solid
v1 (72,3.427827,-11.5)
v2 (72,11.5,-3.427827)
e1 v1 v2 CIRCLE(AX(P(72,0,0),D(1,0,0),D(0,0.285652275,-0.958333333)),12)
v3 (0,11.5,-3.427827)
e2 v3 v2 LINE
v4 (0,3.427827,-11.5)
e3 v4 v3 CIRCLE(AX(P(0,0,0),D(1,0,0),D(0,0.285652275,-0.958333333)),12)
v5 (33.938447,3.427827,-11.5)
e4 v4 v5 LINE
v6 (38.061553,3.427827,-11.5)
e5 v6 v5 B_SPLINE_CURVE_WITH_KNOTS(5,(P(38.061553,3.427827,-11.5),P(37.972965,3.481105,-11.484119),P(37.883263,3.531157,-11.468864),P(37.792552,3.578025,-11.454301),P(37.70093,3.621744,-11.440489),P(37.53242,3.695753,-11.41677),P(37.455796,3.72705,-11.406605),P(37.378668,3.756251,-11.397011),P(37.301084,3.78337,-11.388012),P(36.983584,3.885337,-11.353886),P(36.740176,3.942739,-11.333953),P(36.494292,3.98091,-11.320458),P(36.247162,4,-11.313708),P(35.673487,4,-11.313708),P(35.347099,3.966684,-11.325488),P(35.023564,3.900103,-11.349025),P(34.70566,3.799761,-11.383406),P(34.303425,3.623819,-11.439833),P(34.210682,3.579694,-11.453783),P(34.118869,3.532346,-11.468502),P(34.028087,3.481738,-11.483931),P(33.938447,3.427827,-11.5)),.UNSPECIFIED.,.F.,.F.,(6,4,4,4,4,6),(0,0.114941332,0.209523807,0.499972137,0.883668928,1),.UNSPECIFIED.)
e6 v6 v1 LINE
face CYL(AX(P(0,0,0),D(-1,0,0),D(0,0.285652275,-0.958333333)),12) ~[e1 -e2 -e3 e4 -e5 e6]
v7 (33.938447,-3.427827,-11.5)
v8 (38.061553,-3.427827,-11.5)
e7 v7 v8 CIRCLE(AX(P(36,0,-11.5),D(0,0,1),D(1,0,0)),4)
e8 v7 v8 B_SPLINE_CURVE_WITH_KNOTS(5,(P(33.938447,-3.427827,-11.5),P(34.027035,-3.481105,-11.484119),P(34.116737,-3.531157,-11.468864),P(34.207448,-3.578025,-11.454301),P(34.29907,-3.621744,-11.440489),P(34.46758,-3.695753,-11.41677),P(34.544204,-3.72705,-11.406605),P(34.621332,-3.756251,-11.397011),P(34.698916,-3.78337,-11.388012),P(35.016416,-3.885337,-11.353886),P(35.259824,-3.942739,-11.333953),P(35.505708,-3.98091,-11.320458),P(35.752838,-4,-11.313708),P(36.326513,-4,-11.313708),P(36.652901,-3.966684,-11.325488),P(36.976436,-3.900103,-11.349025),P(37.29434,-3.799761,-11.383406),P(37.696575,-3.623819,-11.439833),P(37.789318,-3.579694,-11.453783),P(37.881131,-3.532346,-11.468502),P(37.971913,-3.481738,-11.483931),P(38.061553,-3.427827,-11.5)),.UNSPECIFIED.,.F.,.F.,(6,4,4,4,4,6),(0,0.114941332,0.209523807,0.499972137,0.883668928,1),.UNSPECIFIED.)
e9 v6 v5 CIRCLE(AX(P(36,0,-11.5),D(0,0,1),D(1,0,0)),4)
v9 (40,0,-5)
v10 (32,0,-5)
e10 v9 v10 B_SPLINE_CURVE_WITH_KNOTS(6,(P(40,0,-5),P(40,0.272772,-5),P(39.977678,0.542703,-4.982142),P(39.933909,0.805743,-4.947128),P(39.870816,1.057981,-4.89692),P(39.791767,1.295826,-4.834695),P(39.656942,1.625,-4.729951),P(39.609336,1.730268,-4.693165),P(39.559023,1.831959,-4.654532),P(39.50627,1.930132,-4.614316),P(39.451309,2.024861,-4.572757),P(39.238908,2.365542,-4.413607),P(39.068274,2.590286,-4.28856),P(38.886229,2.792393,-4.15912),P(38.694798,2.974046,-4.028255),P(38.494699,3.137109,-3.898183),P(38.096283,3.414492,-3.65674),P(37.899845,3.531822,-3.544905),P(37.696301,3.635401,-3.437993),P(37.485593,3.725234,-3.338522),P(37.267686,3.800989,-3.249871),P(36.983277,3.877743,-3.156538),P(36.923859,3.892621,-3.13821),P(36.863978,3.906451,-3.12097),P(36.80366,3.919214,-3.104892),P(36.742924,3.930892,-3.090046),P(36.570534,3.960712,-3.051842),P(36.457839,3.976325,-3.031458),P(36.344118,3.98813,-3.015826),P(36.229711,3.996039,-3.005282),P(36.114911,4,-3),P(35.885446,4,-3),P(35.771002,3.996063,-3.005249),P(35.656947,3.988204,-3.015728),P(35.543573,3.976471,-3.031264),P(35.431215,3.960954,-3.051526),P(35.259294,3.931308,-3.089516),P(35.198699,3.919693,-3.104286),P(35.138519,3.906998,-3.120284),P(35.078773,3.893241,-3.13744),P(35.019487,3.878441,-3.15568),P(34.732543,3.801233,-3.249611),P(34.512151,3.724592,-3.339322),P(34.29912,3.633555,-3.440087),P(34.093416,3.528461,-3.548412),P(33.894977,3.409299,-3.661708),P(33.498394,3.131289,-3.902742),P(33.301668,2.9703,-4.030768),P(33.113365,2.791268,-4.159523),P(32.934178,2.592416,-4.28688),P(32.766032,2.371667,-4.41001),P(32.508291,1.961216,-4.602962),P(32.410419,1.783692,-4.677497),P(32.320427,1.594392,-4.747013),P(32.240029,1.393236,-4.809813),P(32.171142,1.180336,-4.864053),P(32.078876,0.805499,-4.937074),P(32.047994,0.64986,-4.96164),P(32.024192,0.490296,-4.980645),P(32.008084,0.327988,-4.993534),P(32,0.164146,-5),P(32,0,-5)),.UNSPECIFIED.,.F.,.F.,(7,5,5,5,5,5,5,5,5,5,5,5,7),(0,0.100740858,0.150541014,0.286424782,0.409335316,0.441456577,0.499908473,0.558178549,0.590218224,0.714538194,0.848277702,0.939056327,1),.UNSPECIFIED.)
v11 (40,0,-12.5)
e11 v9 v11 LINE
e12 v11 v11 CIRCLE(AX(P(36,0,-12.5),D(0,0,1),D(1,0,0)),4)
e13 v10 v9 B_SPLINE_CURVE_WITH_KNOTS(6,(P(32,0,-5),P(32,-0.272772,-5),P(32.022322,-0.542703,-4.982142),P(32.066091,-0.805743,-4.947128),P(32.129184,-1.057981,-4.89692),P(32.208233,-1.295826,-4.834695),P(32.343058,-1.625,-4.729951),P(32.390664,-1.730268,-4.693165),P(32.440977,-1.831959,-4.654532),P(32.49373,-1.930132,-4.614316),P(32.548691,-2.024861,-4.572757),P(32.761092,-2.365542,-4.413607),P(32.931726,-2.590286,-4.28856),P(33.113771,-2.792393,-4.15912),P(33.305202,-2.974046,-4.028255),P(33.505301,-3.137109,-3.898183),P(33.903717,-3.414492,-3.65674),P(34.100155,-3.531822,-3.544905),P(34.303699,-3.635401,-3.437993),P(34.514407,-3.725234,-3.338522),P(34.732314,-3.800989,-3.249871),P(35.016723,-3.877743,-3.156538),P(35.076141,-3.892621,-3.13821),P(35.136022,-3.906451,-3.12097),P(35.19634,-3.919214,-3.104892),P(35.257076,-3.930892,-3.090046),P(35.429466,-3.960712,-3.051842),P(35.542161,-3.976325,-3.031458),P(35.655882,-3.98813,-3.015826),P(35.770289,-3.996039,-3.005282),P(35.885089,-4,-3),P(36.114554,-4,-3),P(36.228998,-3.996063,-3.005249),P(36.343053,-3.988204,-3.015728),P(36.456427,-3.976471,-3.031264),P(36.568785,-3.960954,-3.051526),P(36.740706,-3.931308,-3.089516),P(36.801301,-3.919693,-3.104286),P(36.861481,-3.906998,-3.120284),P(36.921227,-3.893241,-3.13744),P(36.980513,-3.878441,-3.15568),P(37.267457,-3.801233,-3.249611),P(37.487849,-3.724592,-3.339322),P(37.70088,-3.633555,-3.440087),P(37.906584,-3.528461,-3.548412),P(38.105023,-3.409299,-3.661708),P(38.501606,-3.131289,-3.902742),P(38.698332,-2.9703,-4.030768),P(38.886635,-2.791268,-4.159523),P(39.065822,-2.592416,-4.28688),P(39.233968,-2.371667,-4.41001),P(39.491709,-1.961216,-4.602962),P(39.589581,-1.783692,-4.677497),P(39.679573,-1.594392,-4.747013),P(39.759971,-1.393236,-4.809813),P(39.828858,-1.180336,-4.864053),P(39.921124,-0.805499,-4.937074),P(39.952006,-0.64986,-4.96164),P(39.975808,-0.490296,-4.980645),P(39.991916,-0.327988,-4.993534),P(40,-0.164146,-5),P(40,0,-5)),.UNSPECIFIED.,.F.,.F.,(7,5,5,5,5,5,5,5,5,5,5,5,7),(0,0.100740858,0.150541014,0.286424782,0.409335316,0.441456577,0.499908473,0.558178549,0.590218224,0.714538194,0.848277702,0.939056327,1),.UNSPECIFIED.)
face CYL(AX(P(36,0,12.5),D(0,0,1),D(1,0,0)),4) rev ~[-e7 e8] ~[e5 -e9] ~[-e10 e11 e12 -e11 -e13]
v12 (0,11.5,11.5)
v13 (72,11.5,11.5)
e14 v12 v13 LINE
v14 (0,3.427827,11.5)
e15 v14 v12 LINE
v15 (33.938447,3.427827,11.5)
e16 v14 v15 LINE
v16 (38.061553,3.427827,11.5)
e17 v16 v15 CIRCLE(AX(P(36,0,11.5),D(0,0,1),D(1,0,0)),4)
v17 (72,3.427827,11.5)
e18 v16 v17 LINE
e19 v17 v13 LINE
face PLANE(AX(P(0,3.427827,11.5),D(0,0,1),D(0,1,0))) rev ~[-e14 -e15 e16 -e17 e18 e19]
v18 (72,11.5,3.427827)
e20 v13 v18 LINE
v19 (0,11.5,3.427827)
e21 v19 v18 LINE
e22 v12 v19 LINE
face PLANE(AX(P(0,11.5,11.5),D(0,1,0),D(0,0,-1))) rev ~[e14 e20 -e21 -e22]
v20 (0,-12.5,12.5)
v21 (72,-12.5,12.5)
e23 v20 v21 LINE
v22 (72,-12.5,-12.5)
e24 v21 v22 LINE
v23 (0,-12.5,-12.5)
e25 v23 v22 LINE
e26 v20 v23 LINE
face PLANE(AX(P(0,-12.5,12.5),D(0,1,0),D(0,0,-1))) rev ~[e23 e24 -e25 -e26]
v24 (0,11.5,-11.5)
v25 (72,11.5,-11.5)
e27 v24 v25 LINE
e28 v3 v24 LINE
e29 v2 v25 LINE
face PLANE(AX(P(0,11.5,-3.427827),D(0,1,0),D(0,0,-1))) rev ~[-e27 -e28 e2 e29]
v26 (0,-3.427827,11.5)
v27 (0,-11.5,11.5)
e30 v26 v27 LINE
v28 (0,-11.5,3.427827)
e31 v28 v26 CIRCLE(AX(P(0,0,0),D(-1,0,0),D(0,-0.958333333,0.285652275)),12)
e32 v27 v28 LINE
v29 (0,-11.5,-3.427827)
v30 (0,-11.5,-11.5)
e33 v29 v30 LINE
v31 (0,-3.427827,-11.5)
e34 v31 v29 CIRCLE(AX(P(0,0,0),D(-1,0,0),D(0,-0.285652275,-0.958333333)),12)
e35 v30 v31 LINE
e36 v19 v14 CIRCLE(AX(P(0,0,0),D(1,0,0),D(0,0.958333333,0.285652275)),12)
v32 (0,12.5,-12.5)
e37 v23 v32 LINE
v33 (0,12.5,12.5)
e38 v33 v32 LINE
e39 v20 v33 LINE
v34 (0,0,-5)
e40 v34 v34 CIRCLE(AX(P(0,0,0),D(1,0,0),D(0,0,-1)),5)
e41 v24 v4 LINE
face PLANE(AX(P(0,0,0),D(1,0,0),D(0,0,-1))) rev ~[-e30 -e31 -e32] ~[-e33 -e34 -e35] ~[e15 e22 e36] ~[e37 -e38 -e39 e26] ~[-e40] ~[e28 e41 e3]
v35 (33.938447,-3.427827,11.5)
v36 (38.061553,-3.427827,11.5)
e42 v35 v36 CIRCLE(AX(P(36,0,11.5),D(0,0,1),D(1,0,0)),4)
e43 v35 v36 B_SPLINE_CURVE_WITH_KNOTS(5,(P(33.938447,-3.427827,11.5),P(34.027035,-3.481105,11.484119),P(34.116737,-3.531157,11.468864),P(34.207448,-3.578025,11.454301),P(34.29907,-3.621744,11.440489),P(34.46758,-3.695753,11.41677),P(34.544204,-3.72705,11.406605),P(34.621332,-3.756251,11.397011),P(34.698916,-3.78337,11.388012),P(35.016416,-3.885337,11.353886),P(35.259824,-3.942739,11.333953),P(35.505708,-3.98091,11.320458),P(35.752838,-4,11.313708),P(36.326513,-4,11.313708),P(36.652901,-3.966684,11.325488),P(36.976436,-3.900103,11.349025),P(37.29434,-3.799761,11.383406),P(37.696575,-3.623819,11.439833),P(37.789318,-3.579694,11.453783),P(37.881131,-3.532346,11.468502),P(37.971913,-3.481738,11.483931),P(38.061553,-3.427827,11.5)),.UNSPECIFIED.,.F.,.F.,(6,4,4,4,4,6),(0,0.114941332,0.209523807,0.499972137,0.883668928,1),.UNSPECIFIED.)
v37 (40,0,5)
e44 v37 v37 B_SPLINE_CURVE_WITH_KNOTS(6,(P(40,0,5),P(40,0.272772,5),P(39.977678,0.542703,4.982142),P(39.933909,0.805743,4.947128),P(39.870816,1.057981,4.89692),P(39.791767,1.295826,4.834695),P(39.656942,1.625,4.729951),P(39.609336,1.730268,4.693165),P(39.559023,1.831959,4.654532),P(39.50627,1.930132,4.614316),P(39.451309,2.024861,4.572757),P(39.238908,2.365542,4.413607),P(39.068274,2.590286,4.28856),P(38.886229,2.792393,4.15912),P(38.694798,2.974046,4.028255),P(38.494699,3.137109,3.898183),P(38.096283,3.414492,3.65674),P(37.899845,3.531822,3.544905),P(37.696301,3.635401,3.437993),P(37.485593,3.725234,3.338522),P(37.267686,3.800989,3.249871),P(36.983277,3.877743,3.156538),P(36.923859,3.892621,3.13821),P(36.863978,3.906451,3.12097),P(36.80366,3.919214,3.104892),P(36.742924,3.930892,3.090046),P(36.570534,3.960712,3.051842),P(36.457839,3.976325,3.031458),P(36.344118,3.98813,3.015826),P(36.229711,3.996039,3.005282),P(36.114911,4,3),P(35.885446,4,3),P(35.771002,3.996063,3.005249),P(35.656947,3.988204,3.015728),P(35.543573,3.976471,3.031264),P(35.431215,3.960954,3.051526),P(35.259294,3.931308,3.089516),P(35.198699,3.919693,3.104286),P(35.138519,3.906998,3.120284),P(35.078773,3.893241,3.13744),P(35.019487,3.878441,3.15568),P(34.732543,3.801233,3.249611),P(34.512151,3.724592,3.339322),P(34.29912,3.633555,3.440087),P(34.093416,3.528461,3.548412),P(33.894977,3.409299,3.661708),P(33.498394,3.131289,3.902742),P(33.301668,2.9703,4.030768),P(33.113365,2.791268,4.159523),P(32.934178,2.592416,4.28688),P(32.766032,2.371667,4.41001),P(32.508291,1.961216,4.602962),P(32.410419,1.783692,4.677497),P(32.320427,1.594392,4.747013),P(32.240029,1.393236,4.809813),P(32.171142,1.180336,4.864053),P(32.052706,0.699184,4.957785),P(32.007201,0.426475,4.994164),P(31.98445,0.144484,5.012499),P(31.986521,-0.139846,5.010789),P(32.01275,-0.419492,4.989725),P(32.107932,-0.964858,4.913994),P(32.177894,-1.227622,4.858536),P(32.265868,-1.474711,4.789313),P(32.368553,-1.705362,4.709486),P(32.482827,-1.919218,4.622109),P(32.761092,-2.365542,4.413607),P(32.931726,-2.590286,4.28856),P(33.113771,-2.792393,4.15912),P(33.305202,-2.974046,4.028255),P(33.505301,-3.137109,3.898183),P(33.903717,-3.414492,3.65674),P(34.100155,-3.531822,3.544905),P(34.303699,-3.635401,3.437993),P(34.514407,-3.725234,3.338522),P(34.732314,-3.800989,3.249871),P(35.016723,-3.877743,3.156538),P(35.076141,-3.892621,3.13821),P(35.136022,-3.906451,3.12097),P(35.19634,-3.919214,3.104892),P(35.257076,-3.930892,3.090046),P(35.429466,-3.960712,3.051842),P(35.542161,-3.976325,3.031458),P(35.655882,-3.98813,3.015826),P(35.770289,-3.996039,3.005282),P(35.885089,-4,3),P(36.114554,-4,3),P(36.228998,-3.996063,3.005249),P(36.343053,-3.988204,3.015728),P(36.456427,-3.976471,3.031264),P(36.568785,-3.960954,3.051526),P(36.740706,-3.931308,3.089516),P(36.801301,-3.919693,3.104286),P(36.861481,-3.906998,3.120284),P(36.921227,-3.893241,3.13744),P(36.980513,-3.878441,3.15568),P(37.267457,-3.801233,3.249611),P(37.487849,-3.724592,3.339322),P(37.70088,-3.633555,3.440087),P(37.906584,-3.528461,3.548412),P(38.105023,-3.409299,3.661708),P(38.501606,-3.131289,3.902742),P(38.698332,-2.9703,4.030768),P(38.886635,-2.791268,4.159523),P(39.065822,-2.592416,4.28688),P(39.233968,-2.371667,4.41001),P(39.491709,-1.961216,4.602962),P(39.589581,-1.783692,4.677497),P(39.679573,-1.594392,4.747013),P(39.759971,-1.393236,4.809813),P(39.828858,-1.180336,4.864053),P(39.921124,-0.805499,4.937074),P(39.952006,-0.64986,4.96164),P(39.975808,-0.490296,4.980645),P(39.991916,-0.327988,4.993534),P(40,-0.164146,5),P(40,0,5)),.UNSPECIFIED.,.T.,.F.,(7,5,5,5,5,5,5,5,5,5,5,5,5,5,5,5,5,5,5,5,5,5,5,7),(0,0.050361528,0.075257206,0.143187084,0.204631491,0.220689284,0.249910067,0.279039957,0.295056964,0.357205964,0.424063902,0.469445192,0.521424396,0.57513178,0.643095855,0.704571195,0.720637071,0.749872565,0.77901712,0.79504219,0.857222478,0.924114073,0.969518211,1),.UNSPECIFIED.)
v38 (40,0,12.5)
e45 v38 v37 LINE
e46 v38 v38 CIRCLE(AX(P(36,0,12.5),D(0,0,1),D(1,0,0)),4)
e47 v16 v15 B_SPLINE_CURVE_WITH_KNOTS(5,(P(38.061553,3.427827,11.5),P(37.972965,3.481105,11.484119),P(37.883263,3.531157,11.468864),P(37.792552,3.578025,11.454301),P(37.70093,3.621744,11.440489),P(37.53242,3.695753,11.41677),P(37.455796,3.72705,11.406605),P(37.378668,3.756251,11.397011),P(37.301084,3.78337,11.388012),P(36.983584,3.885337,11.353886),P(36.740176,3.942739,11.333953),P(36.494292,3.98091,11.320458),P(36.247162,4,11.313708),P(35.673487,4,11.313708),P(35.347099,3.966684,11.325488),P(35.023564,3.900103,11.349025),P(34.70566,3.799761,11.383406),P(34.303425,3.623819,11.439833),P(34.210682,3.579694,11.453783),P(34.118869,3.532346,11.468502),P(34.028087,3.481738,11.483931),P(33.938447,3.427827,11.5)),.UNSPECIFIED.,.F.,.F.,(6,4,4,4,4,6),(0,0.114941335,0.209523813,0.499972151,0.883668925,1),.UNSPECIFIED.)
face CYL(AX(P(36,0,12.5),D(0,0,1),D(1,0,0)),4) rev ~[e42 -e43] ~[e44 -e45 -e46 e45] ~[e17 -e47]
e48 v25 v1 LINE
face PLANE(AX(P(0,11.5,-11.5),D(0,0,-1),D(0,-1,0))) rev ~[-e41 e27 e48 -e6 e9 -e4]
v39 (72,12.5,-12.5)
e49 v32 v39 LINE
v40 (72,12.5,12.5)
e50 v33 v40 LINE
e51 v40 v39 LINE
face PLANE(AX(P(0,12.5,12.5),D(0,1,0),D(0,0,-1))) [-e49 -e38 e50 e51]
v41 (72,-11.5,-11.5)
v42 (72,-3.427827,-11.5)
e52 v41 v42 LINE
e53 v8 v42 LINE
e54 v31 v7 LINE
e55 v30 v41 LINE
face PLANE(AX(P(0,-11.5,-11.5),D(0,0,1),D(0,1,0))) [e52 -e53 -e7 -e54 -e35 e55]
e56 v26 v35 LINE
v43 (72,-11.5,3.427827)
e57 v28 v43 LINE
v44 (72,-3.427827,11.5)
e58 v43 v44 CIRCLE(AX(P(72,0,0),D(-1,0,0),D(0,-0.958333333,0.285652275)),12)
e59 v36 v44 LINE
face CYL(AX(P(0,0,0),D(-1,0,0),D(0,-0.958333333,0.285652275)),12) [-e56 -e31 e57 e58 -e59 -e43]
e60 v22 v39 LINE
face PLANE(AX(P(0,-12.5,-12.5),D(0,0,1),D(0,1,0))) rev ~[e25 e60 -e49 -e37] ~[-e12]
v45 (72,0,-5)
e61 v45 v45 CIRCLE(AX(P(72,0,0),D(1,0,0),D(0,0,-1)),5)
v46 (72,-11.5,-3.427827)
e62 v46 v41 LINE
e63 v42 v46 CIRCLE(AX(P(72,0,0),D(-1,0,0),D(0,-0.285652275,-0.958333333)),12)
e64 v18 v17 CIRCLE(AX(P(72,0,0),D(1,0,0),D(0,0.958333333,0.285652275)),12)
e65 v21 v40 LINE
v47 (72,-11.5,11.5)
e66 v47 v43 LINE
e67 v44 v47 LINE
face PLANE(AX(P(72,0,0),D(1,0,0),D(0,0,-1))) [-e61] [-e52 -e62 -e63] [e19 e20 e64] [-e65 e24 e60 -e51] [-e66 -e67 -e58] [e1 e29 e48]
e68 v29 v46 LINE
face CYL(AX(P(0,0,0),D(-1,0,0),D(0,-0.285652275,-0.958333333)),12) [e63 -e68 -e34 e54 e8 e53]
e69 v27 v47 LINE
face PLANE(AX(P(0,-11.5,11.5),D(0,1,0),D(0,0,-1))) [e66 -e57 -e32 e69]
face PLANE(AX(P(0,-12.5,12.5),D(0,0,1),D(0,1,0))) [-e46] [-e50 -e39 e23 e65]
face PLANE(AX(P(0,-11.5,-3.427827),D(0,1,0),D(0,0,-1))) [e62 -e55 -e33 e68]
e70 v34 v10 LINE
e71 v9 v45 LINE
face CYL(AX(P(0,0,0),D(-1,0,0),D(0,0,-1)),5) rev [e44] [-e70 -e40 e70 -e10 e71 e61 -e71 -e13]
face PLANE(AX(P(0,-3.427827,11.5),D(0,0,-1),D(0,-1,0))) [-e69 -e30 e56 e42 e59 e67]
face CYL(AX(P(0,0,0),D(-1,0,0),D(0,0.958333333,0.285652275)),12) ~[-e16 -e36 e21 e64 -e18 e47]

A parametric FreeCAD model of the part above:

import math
import FreeCAD as App
import Part
import Sketcher

V = App.Vector
Q = App.Units.Quantity

doc = App.newDocument("Part")
body = doc.addObject("PartDesign::Body", "Body")

sketch1 = doc.addObject("Sketcher::SketchObject", "Sketch")
body.addObject(sketch1)
sketch1.AttachmentSupport = (doc.YZ_Plane, [""])
sketch1.MapMode = "FlatFace"
sketch1.addGeometry([
    Part.LineSegment(V(12, 12, 0), V(-12, 12, 0)),
    Part.LineSegment(V(-12, 12, 0), V(-12, -12, 0)),
    Part.LineSegment(V(-12, -12, 0), V(12, -12, 0)),
    Part.LineSegment(V(12, -12, 0), V(12, 12, 0)),
    Part.LineSegment(V(-12, 3, 0), V(-12, 12, 0)),
    Part.LineSegment(V(-12, 12, 0), V(-3, 12, 0)),
    Part.ArcOfCircle(Part.Circle(V(0, 0, 0), V(0, 0, 1), 12), math.radians(107), math.radians(163)),
    Part.LineSegment(V(-3, -12, 0), V(-12, -12, 0)),
    Part.LineSegment(V(-12, -12, 0), V(-12, -3, 0)),
    Part.ArcOfCircle(Part.Circle(V(0, 0, 0), V(0, 0, 1), 12), math.radians(-163), math.radians(-107)),
    Part.LineSegment(V(3, 12, 0), V(12, 12, 0)),
    Part.LineSegment(V(12, 12, 0), V(12, 3, 0)),
    Part.ArcOfCircle(Part.Circle(V(0, 0, 0), V(0, 0, 1), 12), math.radians(17), math.radians(73)),
    Part.Circle(V(0, 0, 0), V(0, 0, 1), 5),
    Part.ArcOfCircle(Part.Circle(V(0, 0, 0), V(0, 0, 1), 12), math.radians(-73), math.radians(-17)),
    Part.LineSegment(V(12, -3, 0), V(12, -12, 0)),
    Part.LineSegment(V(12, -12, 0), V(3, -12, 0)),
], False)
sketch1.addConstraint([
    Sketcher.Constraint("Coincident", 0, 2, 1, 1),
    Sketcher.Constraint("Coincident", 1, 2, 2, 1),
    Sketcher.Constraint("Coincident", 2, 2, 3, 1),
    Sketcher.Constraint("Coincident", 3, 2, 0, 1),
    Sketcher.Constraint("Coincident", 4, 2, 5, 1),
    Sketcher.Constraint("Coincident", 5, 2, 6, 1),
    Sketcher.Constraint("Coincident", 6, 2, 4, 1),
    Sketcher.Constraint("Coincident", 7, 2, 8, 1),
    Sketcher.Constraint("Coincident", 8, 2, 9, 1),
    Sketcher.Constraint("Coincident", 9, 2, 7, 1),
    Sketcher.Constraint("Coincident", 10, 2, 11, 1),
    Sketcher.Constraint("Coincident", 11, 2, 12, 1),
    Sketcher.Constraint("Coincident", 12, 2, 10, 1),
    Sketcher.Constraint("Coincident", 14, 2, 15, 1),
    Sketcher.Constraint("Coincident", 15, 2, 16, 1),
    Sketcher.Constraint("Coincident", 16, 2, 14, 1),
    Sketcher.Constraint("Horizontal", 0),
    Sketcher.Constraint("Vertical", 1),
    Sketcher.Constraint("Horizontal", 2),
    Sketcher.Constraint("Vertical", 3),
    Sketcher.Constraint("Vertical", 4),
    Sketcher.Constraint("Horizontal", 5),
    Sketcher.Constraint("Horizontal", 7),
    Sketcher.Constraint("Vertical", 8),
    Sketcher.Constraint("Horizontal", 10),
    Sketcher.Constraint("Vertical", 11),
    Sketcher.Constraint("Vertical", 15),
    Sketcher.Constraint("Horizontal", 16),
    Sketcher.Constraint("Coincident", 6, 3, -1, 1),
    Sketcher.Constraint("Coincident", 9, 3, -1, 1),
    Sketcher.Constraint("Coincident", 12, 3, -1, 1),
    Sketcher.Constraint("Coincident", 13, 3, -1, 1),
    Sketcher.Constraint("Coincident", 14, 3, -1, 1),
    Sketcher.Constraint("Equal", 6, 9),
    Sketcher.Constraint("Equal", 9, 12),
    Sketcher.Constraint("Equal", 12, 14),
    Sketcher.Constraint("Symmetric", 0, 2, 2, 2, -1, 1),
    Sketcher.Constraint("Symmetric", 7, 2, 10, 2, -1, 1),
    Sketcher.Constraint("Symmetric", 4, 2, 15, 2, -1, 1),
    Sketcher.Constraint("Symmetric", 4, 2, 10, 2, -2),
    Sketcher.Constraint("Equal", 2, 1),
    Sketcher.Constraint("Equal", 16, 4),
    Sketcher.Constraint("Diameter", 13, Q("10 mm")),
    Sketcher.Constraint("Radius", 6, Q("12 mm")),
    Sketcher.Constraint("DistanceX", 0, 2, 0, 1, Q("25 mm")),
    Sketcher.Constraint("DistanceX", 0, 2, 4, 2, Q("1 mm")),
])
pad1 = doc.addObject("PartDesign::Pad", "Pad")
body.addObject(pad1)
pad1.Profile = sketch1
pad1.Length = 72

sketch2 = doc.addObject("Sketcher::SketchObject", "Sketch001")
body.addObject(sketch2)
sketch2.AttachmentSupport = (doc.XY_Plane, [""])
sketch2.MapMode = "FlatFace"
sketch2.AttachmentOffset = App.Placement(V(0, 0, 12.5), App.Rotation())
sketch2.addGeometry(Part.Circle(V(36, 0, 0), V(0, 0, 1), 4), False)
sketch2.addConstraint([
    Sketcher.Constraint("PointOnObject", 0, 3, -1),
    Sketcher.Constraint("Diameter", 0, Q("8 mm")),
    Sketcher.Constraint("DistanceX", -1, 1, 0, 3, Q("36 mm")),
])
pocket1 = doc.addObject("PartDesign::Pocket", "Pocket")
body.addObject(pocket1)
pocket1.Profile = sketch2
pocket1.Type = "ThroughAll"

doc.recompute()
